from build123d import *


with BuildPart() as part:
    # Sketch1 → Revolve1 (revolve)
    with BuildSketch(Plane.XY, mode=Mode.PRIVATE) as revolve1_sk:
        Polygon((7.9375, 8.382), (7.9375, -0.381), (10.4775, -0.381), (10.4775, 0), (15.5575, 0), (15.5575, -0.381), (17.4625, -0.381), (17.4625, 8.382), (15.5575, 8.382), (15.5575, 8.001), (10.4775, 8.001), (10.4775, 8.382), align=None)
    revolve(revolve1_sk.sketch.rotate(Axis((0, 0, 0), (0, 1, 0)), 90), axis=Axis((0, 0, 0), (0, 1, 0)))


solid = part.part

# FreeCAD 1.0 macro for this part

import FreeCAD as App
import Part
import Sketcher
from FreeCAD import Vector
Q = App.Units.Quantity


def add_polygon(sketch, points):
    """Adds a closed chain of lines whose ends are joined by coincident constraints."""
    first, n = sketch.GeometryCount, len(points)
    for a, b in zip(points, points[1:] + points[:1]):
        sketch.addGeometry(Part.LineSegment(App.Vector(*a, 0), App.Vector(*b, 0)), False)
    for i in range(n):
        sketch.addConstraint(Sketcher.Constraint("Coincident", first + i, 2, first + (i + 1) % n, 1))

doc = App.newDocument("Part")
body = doc.addObject("PartDesign::Body", "Body")

sketch1 = body.newObject("Sketcher::SketchObject", "Sketch")
sketch1.AttachmentSupport = (doc.getObject("XY_Plane"), [""])
sketch1.MapMode = "FlatFace"
add_polygon(sketch1, [(7.94, 8.38), (7.94, -0.38), (10.48, -0.38), (10.48, 0), (15.56, 0), (15.56, -0.38), (17.46, -0.38), (17.46, 8.38), (15.56, 8.38), (15.56, 8), (10.48, 8), (10.48, 8.38)])
sketch1.addConstraint(Sketcher.Constraint("Vertical", 0))
sketch1.addConstraint(Sketcher.Constraint("Horizontal", 1))
sketch1.addConstraint(Sketcher.Constraint("Vertical", 2))
sketch1.addConstraint(Sketcher.Constraint("Horizontal", 3))
sketch1.addConstraint(Sketcher.Constraint("Vertical", 4))
sketch1.addConstraint(Sketcher.Constraint("Horizontal", 5))
sketch1.addConstraint(Sketcher.Constraint("Vertical", 6))
sketch1.addConstraint(Sketcher.Constraint("Horizontal", 7))
sketch1.addConstraint(Sketcher.Constraint("Vertical", 8))
sketch1.addConstraint(Sketcher.Constraint("Horizontal", 9))
sketch1.addConstraint(Sketcher.Constraint("Vertical", 10))
sketch1.addConstraint(Sketcher.Constraint("Horizontal", 11))
sketch1.addConstraint(Sketcher.Constraint("PointOnObject", 2, 2, -1))
sketch1.addConstraint(Sketcher.Constraint("Horizontal", 1, 2, 4, 2))
sketch1.addConstraint(Sketcher.Constraint("Horizontal", 7, 2, 10, 2))
sketch1.addConstraint(Sketcher.Constraint("Vertical", 4, 2, 7, 2))
sketch1.addConstraint(Sketcher.Constraint("Vertical", 2, 2, 9, 2))
sketch1.addConstraint(Sketcher.Constraint("Equal", 4, 8))
sketch1.addConstraint(Sketcher.Constraint("DistanceX", 1, 1, 1, 2, Q("0.1 in")))
sketch1.addConstraint(Sketcher.Constraint("DistanceX", 3, 1, 3, 2, Q("0.2 in")))
sketch1.addConstraint(Sketcher.Constraint("DistanceX", 5, 1, 5, 2, Q("0.075 in")))
sketch1.addConstraint(Sketcher.Constraint("DistanceY", 0, 2, 0, 1, Q("0.345 in")))
sketch1.addConstraint(Sketcher.Constraint("DistanceY", 2, 1, 2, 2, Q("0.015 in")))
sketch1.addConstraint(Sketcher.Constraint("DistanceX", -1, 1, 0, 2, Q("0.3125 in")))
revolution = body.newObject("PartDesign::Revolution", "Revolution")
revolution.Profile = sketch1
revolution.ReferenceAxis = (sketch1, ["V_Axis"])
revolution.Angle = 360

doc.recompute()
